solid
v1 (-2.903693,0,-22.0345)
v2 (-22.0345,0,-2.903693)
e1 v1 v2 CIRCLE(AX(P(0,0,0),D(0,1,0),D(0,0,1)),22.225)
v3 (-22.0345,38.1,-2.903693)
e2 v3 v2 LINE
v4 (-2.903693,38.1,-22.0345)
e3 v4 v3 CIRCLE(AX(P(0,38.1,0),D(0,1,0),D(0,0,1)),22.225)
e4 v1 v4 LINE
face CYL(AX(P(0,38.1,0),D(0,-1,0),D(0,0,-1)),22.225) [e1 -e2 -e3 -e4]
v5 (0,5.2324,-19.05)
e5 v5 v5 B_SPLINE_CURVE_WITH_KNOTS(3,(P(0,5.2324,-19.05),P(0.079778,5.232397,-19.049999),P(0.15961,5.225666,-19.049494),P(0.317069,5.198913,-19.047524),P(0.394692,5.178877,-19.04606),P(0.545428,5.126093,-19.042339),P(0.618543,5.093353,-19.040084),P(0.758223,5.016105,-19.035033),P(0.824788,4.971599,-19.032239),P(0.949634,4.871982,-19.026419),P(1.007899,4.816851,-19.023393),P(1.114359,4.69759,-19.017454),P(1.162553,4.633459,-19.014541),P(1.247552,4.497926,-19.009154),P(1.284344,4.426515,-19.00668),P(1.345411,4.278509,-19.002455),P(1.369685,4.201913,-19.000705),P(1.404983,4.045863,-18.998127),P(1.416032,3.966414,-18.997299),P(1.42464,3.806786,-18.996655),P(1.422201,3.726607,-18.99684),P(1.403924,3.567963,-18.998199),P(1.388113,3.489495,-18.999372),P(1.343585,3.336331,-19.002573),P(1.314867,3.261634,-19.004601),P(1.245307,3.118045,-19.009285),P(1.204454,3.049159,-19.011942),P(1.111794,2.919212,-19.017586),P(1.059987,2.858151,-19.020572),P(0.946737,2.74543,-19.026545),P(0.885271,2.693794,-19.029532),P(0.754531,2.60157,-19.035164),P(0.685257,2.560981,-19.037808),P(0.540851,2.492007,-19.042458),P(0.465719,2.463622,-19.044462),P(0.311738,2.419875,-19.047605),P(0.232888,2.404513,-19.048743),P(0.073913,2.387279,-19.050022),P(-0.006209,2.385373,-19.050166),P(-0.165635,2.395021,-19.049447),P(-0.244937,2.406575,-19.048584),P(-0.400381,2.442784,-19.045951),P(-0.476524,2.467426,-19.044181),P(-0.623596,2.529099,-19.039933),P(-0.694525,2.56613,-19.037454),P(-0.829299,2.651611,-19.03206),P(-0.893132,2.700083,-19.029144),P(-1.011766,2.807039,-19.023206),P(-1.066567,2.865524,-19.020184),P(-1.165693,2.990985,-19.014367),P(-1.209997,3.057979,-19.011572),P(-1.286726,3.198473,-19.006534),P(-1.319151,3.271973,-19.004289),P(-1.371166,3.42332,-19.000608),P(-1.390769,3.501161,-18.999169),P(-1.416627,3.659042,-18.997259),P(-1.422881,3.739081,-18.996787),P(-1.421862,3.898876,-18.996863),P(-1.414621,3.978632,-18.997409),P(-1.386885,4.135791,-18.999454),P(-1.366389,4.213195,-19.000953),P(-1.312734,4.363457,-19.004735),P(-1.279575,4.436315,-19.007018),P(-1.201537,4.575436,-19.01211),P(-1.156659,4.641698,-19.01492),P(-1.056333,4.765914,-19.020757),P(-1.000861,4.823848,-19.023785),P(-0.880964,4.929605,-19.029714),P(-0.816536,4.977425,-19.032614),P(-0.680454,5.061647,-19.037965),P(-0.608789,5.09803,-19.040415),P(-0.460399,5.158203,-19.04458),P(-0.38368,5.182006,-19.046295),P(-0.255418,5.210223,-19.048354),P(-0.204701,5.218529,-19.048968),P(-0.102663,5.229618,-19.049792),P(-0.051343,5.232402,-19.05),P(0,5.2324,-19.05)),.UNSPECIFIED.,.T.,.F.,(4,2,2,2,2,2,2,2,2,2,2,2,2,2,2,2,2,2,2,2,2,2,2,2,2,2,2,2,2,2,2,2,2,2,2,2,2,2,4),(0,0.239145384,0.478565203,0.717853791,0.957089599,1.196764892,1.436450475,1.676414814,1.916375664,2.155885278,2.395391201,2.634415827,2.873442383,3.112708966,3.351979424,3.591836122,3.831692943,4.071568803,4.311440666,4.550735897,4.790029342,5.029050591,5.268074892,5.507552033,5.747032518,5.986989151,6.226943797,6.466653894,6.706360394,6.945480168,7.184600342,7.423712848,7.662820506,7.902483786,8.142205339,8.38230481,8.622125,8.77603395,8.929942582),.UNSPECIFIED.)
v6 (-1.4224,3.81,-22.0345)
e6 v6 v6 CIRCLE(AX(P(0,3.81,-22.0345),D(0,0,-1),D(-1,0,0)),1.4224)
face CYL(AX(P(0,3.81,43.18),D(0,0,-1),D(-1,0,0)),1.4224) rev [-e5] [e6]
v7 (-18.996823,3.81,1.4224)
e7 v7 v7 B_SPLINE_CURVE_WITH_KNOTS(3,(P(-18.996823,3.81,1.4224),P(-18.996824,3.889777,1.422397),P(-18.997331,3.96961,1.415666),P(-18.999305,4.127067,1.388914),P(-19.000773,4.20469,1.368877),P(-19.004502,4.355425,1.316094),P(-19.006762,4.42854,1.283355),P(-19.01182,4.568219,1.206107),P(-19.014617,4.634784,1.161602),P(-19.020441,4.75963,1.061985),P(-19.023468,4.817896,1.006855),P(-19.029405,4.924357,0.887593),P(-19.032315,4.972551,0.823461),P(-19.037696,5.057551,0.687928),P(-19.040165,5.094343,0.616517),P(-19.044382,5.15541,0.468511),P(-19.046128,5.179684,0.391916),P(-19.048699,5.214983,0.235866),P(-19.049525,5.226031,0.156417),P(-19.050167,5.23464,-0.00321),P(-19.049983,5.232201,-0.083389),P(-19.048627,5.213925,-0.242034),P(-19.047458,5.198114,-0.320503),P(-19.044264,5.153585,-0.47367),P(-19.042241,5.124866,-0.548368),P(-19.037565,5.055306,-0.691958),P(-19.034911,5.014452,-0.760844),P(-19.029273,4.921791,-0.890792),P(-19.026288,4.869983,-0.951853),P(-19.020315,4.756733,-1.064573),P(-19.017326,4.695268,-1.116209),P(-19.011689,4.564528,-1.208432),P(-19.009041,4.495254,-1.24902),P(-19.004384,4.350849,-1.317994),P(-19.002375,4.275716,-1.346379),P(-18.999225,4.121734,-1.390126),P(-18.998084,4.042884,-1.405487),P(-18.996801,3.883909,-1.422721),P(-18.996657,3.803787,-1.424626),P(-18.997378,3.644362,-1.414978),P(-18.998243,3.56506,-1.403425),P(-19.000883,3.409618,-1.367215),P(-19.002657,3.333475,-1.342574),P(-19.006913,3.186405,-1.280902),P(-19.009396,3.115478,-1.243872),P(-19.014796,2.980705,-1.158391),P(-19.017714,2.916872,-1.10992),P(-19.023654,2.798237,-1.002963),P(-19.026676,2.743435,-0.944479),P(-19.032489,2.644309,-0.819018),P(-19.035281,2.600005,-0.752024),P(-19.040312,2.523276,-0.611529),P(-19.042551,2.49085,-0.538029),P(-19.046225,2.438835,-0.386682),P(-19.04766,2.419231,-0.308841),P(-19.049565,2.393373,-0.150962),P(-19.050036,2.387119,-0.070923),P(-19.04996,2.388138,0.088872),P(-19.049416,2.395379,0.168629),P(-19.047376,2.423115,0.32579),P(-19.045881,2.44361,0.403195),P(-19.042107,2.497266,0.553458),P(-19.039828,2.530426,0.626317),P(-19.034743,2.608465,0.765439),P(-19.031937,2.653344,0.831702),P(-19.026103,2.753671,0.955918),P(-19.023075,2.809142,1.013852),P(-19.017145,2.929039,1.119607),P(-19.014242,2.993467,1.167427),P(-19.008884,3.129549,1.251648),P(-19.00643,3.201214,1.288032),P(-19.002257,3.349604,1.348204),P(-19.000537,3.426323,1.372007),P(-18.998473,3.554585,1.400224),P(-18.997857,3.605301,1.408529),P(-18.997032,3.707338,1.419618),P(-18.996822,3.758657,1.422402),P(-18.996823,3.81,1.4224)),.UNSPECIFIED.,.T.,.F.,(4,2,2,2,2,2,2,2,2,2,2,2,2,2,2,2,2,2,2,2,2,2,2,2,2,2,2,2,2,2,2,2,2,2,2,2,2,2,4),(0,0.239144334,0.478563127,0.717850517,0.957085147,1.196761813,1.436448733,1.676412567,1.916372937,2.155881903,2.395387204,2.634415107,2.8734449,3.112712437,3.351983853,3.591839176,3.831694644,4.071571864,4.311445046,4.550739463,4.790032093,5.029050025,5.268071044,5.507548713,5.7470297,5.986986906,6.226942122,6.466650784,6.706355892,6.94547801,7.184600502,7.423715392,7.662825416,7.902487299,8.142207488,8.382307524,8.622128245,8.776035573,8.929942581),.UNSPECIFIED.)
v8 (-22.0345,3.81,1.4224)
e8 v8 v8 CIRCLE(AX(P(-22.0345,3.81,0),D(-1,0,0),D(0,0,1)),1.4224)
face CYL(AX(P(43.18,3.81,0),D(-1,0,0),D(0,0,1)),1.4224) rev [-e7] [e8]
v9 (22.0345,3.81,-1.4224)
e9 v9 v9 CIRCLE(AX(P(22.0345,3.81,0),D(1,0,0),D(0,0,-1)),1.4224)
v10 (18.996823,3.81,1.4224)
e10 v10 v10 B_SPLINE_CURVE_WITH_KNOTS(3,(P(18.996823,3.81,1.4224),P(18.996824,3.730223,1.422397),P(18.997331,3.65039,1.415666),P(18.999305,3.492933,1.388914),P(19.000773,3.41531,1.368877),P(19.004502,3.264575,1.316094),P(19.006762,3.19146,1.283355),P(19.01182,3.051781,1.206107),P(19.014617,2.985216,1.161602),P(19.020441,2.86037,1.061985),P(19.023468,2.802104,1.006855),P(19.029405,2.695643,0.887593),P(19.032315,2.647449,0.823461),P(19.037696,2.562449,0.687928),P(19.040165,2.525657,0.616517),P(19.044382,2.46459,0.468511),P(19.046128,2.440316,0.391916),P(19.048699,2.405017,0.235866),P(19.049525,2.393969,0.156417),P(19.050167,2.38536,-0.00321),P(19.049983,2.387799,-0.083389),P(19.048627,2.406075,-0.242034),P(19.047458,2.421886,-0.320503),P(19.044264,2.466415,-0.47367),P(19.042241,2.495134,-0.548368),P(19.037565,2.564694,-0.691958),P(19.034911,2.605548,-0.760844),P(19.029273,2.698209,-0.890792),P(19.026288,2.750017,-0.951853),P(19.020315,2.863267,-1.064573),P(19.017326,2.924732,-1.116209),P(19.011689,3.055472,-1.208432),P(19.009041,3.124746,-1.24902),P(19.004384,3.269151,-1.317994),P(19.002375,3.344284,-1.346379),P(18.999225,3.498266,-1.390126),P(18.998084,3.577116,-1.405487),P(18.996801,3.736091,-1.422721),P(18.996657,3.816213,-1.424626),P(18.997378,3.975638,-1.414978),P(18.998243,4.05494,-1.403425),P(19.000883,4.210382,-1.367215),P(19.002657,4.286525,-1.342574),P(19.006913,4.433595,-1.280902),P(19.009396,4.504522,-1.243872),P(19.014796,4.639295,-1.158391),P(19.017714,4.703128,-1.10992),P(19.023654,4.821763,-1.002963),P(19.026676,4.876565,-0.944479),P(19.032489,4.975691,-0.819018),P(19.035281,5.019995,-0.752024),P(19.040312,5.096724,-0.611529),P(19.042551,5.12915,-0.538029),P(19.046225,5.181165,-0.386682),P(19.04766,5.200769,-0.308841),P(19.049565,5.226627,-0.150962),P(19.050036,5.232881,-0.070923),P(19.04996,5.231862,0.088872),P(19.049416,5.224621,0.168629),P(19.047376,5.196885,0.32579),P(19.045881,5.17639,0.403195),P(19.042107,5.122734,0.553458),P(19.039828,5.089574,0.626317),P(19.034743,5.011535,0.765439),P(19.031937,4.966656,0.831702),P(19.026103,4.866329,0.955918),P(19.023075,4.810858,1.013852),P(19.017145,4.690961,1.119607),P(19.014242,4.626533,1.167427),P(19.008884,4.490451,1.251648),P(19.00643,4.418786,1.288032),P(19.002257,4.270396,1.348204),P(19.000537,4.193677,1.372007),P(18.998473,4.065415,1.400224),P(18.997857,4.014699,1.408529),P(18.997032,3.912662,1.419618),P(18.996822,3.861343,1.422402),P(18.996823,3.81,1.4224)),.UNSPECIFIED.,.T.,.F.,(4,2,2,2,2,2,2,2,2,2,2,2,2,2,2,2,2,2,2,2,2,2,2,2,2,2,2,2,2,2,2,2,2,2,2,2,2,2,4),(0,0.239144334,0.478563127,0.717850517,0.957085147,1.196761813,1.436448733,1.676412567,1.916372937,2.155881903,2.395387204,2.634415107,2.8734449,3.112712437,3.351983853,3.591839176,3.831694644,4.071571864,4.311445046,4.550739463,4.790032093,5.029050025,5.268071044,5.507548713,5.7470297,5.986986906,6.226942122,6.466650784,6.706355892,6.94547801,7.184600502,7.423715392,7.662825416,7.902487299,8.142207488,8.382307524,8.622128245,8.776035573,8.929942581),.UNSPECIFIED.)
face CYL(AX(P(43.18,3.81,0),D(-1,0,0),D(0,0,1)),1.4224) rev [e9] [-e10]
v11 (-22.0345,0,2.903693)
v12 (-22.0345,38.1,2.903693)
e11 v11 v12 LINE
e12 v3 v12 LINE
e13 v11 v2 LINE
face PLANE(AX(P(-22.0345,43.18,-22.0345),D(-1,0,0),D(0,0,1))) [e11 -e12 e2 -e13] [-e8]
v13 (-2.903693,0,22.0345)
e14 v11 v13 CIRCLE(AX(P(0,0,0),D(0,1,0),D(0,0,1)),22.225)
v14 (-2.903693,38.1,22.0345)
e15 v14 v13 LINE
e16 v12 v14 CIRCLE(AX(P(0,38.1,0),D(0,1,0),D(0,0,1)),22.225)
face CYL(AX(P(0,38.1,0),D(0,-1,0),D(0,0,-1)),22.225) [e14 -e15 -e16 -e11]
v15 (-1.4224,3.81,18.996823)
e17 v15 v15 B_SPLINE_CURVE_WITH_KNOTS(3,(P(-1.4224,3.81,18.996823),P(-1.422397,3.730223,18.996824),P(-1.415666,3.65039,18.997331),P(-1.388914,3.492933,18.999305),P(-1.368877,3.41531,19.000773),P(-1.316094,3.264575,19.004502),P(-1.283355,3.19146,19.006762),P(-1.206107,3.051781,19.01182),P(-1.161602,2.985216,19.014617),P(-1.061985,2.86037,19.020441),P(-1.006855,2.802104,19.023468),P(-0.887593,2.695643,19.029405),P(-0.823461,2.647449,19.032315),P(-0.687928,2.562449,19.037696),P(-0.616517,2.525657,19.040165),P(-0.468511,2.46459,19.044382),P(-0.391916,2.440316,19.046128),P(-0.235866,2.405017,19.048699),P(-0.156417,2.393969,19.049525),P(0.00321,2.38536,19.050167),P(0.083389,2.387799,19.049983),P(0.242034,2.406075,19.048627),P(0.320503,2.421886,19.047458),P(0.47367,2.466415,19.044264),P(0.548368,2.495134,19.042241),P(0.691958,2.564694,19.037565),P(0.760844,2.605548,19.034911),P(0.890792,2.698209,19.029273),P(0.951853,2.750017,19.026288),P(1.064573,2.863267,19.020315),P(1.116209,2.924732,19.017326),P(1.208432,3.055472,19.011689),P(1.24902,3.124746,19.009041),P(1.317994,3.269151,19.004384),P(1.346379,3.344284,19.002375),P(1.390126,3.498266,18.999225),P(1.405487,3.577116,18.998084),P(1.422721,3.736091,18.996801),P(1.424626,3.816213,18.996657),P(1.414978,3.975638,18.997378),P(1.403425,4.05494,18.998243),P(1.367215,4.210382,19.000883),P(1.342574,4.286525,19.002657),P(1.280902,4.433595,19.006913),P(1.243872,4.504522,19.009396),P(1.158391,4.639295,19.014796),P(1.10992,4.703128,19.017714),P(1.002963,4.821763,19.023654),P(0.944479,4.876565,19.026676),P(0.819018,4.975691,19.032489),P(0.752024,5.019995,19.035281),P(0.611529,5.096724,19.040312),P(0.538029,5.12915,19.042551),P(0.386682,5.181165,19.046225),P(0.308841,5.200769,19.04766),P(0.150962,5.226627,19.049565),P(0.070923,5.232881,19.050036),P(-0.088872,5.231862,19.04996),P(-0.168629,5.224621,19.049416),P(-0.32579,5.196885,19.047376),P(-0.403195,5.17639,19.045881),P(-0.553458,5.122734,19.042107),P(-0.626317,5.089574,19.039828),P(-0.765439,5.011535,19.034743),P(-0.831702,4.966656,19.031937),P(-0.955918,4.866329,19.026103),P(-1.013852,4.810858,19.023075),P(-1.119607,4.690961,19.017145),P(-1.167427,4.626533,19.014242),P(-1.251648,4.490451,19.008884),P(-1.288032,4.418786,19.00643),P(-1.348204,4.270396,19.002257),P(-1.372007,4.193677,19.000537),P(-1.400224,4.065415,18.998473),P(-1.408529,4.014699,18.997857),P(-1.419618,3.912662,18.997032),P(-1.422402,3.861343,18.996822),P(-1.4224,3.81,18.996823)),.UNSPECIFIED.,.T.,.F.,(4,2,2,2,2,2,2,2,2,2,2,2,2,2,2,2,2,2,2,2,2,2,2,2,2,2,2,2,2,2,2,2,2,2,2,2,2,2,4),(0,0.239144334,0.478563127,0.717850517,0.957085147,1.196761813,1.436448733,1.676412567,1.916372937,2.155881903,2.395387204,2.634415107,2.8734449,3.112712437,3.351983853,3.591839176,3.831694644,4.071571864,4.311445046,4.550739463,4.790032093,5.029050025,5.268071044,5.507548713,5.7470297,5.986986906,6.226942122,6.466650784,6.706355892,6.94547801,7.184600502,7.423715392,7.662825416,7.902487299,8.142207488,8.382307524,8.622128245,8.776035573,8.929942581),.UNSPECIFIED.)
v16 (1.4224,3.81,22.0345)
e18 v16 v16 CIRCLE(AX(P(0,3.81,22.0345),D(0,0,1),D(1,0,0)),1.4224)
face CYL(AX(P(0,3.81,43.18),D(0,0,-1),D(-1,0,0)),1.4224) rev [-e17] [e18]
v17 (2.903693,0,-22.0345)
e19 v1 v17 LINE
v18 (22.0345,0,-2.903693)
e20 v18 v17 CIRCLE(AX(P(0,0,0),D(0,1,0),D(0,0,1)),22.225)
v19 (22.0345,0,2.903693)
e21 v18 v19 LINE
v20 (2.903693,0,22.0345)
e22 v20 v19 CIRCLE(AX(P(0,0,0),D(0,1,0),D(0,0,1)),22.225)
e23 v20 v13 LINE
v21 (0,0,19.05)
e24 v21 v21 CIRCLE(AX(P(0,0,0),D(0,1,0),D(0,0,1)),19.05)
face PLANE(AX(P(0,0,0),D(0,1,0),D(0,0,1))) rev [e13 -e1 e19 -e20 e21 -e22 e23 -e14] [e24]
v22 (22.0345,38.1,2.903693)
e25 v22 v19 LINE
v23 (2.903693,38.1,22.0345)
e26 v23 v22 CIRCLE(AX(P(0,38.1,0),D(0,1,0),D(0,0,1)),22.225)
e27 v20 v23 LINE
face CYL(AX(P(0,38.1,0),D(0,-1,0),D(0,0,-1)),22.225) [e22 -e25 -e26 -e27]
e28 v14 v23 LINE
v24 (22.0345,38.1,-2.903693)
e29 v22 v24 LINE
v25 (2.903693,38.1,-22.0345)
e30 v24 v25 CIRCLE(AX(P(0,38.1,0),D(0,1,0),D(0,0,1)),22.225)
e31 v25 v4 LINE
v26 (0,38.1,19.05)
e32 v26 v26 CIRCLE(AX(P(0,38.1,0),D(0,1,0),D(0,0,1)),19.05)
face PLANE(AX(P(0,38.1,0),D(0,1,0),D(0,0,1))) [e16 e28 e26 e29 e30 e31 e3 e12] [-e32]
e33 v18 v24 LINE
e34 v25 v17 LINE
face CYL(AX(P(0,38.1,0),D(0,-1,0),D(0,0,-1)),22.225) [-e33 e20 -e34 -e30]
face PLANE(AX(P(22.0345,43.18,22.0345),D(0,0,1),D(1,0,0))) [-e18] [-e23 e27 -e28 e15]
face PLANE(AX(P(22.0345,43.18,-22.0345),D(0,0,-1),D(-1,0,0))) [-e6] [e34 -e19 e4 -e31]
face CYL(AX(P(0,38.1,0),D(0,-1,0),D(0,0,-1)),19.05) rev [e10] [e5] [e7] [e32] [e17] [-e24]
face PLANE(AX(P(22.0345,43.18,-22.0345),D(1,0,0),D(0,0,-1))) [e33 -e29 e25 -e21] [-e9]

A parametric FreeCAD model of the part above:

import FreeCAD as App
import Part
import Sketcher

V = App.Vector
Q = App.Units.Quantity


def add_polygon(sketch, points):
    """Adds a closed chain of lines whose ends are joined by coincident constraints."""
    first, n = sketch.GeometryCount, len(points)
    for a, b in zip(points, points[1:] + points[:1]):
        sketch.addGeometry(Part.LineSegment(App.Vector(*a, 0), App.Vector(*b, 0)), False)
    for i in range(n):
        sketch.addConstraint(Sketcher.Constraint("Coincident", first + i, 2, first + (i + 1) % n, 1))

doc = App.newDocument("Part")
body = doc.addObject("PartDesign::Body", "Body")

# Sketch on XZ plane
sketch1 = body.newObject("Sketcher::SketchObject", "Sketch")
sketch1.AttachmentSupport = (doc.getObject("XZ_Plane"), [""])
sketch1.MapMode = "FlatFace"
sketch1.addGeometry([
    Part.Circle(V(0, 0, 0), V(0, 0, 1), 22),
    Part.Circle(V(0, 0, 0), V(0, 0, 1), 19),
], False)
sketch1.addConstraint([
    Sketcher.Constraint("Coincident", 0, 3, -1, 1),
    Sketcher.Constraint("Coincident", 1, 3, -1, 1),
    Sketcher.Constraint("Diameter", 1, Q("1.5 in")),
    Sketcher.Constraint("Diameter", 0, Q("1.75 in")),
])
pad1 = body.newObject("PartDesign::Pad", "Pad")
pad1.Profile = sketch1
pad1.Length = Q("1.5 in")
pad1.Reversed = True

# Sketch on XY plane
sketch2 = body.newObject("Sketcher::SketchObject", "Sketch001")
sketch2.AttachmentSupport = (doc.getObject("XY_Plane"), [""])
sketch2.MapMode = "FlatFace"
sketch2.addGeometry(Part.Circle(V(0, 3.8, 0), V(0, 0, 1), 1.4), False)
sketch2.addConstraint([
    Sketcher.Constraint("PointOnObject", 0, 3, -2),
    Sketcher.Constraint("Diameter", 0, Q("0.112 in")),
    Sketcher.Constraint("DistanceY", -1, 1, 0, 3, Q("0.15 in")),
])
pocket1 = body.newObject("PartDesign::Pocket", "Pocket")
pocket1.Profile = sketch2
pocket1.Type = "ThroughAll"
pocket1.Midplane = True

# Sketch on YZ plane
sketch3 = body.newObject("Sketcher::SketchObject", "Sketch002")
sketch3.AttachmentSupport = (doc.getObject("YZ_Plane"), [""])
sketch3.MapMode = "FlatFace"
sketch3.addGeometry(Part.Circle(V(3.8, 0, 0), V(0, 0, 1), 1.4), False)
sketch3.addConstraint([
    Sketcher.Constraint("PointOnObject", 0, 3, -1),
    Sketcher.Constraint("Diameter", 0, Q("0.112 in")),
    Sketcher.Constraint("DistanceX", -1, 1, 0, 3, Q("0.15 in")),
])
pocket2 = body.newObject("PartDesign::Pocket", "Pocket001")
pocket2.Profile = sketch3
pocket2.Type = "ThroughAll"
pocket2.Midplane = True

# Sketch on XZ plane
sketch4 = body.newObject("Sketcher::SketchObject", "Sketch003")
sketch4.AttachmentSupport = (doc.getObject("XZ_Plane"), [""])
sketch4.MapMode = "FlatFace"
add_polygon(sketch4, [(-25, 24), (-25, -24), (25, -24), (25, 24)])  # lines 0-3
add_polygon(sketch4, [(22, -22), (-22, -22), (-22, 22), (22, 22)])  # lines 4-7
sketch4.addConstraint([
    Sketcher.Constraint("Vertical", 0),
    Sketcher.Constraint("Horizontal", 1),
    Sketcher.Constraint("Vertical", 2),
    Sketcher.Constraint("Horizontal", 3),
    Sketcher.Constraint("Horizontal", 4),
    Sketcher.Constraint("Vertical", 5),
    Sketcher.Constraint("Horizontal", 6),
    Sketcher.Constraint("Vertical", 7),
    Sketcher.Constraint("Symmetric", 0, 2, 2, 2, -1, 1),
    Sketcher.Constraint("Symmetric", 4, 2, 6, 2, -1, 1),
    Sketcher.Constraint("Equal", 6, 5),
    Sketcher.Constraint("DistanceX", 4, 2, 4, 1, Q("1.735 in")),
    Sketcher.Constraint("DistanceY", 0, 2, 0, 1, 48.00032),
    Sketcher.Constraint("DistanceX", 1, 1, 1, 2, 49.025528),
])
pocket3 = body.newObject("PartDesign::Pocket", "Pocket002")
pocket3.Profile = sketch4
pocket3.Length = Q("1.7 in")

doc.recompute()
